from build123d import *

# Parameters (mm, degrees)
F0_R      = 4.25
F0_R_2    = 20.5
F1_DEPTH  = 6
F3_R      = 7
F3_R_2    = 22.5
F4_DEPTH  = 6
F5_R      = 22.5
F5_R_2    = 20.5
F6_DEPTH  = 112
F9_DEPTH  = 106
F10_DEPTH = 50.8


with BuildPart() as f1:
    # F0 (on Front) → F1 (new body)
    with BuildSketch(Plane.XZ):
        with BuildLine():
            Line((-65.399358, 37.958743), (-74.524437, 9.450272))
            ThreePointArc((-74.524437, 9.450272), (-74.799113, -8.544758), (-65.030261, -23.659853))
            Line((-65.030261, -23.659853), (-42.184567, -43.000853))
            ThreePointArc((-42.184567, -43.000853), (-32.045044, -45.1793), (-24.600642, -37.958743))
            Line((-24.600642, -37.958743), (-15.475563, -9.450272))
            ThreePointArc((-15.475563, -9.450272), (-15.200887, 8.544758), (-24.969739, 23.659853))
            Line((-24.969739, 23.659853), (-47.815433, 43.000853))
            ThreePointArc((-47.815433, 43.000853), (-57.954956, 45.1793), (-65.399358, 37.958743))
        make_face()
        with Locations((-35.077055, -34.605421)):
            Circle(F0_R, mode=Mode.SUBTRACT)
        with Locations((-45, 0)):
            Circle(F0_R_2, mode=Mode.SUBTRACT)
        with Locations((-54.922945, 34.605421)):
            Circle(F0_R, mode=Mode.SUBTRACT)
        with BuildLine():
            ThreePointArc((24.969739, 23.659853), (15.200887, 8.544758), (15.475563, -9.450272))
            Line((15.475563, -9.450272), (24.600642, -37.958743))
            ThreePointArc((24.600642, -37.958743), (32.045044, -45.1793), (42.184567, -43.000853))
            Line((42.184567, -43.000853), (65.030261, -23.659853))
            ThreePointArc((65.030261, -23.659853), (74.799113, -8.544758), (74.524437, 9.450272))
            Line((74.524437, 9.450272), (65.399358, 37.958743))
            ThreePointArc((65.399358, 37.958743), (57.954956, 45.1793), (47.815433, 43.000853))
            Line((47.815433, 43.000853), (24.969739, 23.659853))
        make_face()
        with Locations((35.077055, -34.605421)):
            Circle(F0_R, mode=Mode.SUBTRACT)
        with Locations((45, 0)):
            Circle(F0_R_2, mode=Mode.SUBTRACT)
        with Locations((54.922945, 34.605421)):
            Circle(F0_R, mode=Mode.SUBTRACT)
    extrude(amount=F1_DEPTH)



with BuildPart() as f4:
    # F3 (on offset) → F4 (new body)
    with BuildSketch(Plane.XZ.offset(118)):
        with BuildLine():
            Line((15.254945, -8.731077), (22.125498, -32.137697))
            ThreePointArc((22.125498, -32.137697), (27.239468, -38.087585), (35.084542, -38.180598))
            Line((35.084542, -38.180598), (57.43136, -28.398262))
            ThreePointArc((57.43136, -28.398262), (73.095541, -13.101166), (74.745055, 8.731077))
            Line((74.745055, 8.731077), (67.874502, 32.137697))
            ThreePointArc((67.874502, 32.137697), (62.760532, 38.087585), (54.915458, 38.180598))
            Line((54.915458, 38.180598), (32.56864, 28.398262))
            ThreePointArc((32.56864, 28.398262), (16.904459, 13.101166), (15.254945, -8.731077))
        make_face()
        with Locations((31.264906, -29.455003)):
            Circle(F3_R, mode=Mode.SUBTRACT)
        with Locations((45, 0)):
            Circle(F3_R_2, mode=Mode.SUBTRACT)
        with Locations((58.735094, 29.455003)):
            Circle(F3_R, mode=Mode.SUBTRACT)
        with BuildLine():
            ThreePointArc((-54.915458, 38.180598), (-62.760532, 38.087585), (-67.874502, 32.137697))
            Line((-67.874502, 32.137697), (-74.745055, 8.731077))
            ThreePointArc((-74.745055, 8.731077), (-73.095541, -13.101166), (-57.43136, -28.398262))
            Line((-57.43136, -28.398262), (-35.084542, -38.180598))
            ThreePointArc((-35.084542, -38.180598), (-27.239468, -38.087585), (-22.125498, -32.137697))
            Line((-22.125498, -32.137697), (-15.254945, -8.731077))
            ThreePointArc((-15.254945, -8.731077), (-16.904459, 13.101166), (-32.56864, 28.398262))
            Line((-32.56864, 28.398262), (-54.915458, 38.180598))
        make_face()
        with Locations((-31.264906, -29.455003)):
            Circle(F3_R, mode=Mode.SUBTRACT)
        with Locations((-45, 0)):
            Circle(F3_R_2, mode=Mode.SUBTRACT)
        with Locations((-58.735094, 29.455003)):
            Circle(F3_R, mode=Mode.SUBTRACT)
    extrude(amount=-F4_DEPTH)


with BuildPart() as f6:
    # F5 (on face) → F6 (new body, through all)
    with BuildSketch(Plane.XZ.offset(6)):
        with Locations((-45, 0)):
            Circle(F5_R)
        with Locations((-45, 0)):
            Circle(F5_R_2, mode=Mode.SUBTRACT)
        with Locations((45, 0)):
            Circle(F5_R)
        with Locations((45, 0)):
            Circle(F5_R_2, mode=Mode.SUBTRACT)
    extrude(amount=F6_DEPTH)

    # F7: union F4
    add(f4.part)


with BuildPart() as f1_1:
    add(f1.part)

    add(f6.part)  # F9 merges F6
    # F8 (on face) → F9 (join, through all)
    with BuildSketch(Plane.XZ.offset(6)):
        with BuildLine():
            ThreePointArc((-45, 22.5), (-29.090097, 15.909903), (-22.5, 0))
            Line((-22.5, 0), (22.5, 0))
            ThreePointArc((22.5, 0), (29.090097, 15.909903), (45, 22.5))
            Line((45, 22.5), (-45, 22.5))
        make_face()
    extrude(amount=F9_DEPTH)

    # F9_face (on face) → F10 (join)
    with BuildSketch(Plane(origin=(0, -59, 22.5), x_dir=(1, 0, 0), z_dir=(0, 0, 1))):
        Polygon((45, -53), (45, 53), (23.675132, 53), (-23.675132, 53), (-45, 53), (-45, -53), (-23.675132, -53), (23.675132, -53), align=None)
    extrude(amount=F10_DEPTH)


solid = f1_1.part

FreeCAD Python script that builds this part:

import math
import FreeCAD as App
import Part
import Sketcher

V = App.Vector
Q = App.Units.Quantity


def add_polygon(sketch, points):
    """Adds a closed chain of lines whose ends are joined by coincident constraints."""
    first, n = sketch.GeometryCount, len(points)
    for a, b in zip(points, points[1:] + points[:1]):
        sketch.addGeometry(Part.LineSegment(App.Vector(*a, 0), App.Vector(*b, 0)), False)
    for i in range(n):
        sketch.addConstraint(Sketcher.Constraint("Coincident", first + i, 2, first + (i + 1) % n, 1))

doc = App.newDocument("Part")
params = doc.addObject("Spreadsheet::Sheet", "Params")
for row, (alias, value) in enumerate([
    ("sketch1_diameter", "41 mm"),
    ("sketch1_radius", "30.999999 mm"),
    ("sketch1_radius2", "11 mm"),
    ("sketch1_diameter2", "8.5 mm"),
    ("pad1_length", "6 mm"),
    ("sketch2_diameter", "14 mm"),
    ("sketch2_diameter2", "45 mm"),
    ("sketch2_radius", "31.000001 mm"),
    ("pad2_length", "6 mm"),
    ("sketch3_diameter", "45 mm"),
    ("sketch3_diameter2", "41 mm"),
    ("pad3_length", "112 mm"),
    ("sketch4_radius", "22.499999 mm"),
    ("sketch4_width", "45 mm"),
    ("pad4_length", "106 mm"),
    ("sketch5_width", "90 mm"),
    ("sketch5_height", "106 mm"),
    ("pad5_length", "50.8 mm"),
], start=1):
    params.set(f"A{row}", alias)
    params.set(f"B{row}", "=" + value)
    params.setAlias(f"B{row}", alias)

body = doc.addObject("PartDesign::Body", "Body")
body.AllowCompound = True

# Sketch on XZ plane
sketch1 = body.newObject("Sketcher::SketchObject", "Sketch")
sketch1.AttachmentSupport = (doc.getObject("XZ_Plane"), [""])
sketch1.MapMode = "FlatFace"
sketch1.addGeometry(Part.LineSegment(V(-65.4, 38, 0), V(-74.5, 9.5, 0)), False)
sketch1.addGeometry(Part.ArcOfCircle(Part.Circle(V(-45, 0, 0), V(0, 0, 1), 31), math.radians(162), math.radians(230)), False)
sketch1.addGeometry(Part.LineSegment(V(-65, -23.7, 0), V(-42.2, -43, 0)), False)
sketch1.addGeometry(Part.ArcOfCircle(Part.Circle(V(-35.1, -34.6, 0), V(0, 0, 1), 11), math.radians(-130), math.radians(-18)), False)
sketch1.addGeometry(Part.LineSegment(V(-24.6, -38, 0), V(-15.5, -9.5, 0)), False)
sketch1.addGeometry(Part.ArcOfCircle(Part.Circle(V(-45, 0, 0), V(0, 0, 1), 31), math.radians(-18), math.radians(50)), False)
sketch1.addGeometry(Part.LineSegment(V(-25, 23.7, 0), V(-47.8, 43, 0)), False)
sketch1.addGeometry(Part.ArcOfCircle(Part.Circle(V(-54.9, 34.6, 0), V(0, 0, 1), 11), math.radians(50), math.radians(162)), False)
sketch1.addGeometry(Part.Circle(V(-35.1, -34.6, 0), V(0, 0, 1), 4.2), False)
sketch1.addGeometry(Part.Circle(V(-54.9, 34.6, 0), V(0, 0, 1), 4.2), False)
sketch1.addGeometry(Part.Circle(V(-45, 0, 0), V(0, 0, 1), 20.5), False)
sketch1.addGeometry(Part.ArcOfCircle(Part.Circle(V(45, 0, 0), V(0, 0, 1), 31), math.radians(130), math.radians(198)), False)
sketch1.addGeometry(Part.LineSegment(V(15.5, -9.5, 0), V(24.6, -38, 0)), False)
sketch1.addGeometry(Part.ArcOfCircle(Part.Circle(V(35.1, -34.6, 0), V(0, 0, 1), 11), math.radians(-162), math.radians(-50)), False)
sketch1.addGeometry(Part.LineSegment(V(42.2, -43, 0), V(65, -23.7, 0)), False)
sketch1.addGeometry(Part.ArcOfCircle(Part.Circle(V(45, 0, 0), V(0, 0, 1), 31), math.radians(-50), math.radians(18)), False)
sketch1.addGeometry(Part.LineSegment(V(74.5, 9.5, 0), V(65.4, 38, 0)), False)
sketch1.addGeometry(Part.ArcOfCircle(Part.Circle(V(54.9, 34.6, 0), V(0, 0, 1), 11), math.radians(18), math.radians(130)), False)
sketch1.addGeometry(Part.LineSegment(V(47.8, 43, 0), V(25, 23.7, 0)), False)
sketch1.addGeometry(Part.Circle(V(35.1, -34.6, 0), V(0, 0, 1), 4.2), False)
sketch1.addGeometry(Part.Circle(V(45, 0, 0), V(0, 0, 1), 20.5), False)
sketch1.addGeometry(Part.Circle(V(54.9, 34.6, 0), V(0, 0, 1), 4.2), False)
sketch1.addConstraint(Sketcher.Constraint("Tangent", 0, 2, 1, 1))
sketch1.addConstraint(Sketcher.Constraint("Tangent", 1, 2, 2, 1))
sketch1.addConstraint(Sketcher.Constraint("Tangent", 2, 2, 3, 1))
sketch1.addConstraint(Sketcher.Constraint("Tangent", 3, 2, 4, 1))
sketch1.addConstraint(Sketcher.Constraint("Tangent", 4, 2, 5, 1))
sketch1.addConstraint(Sketcher.Constraint("Tangent", 5, 2, 6, 1))
sketch1.addConstraint(Sketcher.Constraint("Tangent", 6, 2, 7, 1))
sketch1.addConstraint(Sketcher.Constraint("Tangent", 7, 2, 0, 1))
sketch1.addConstraint(Sketcher.Constraint("Tangent", 11, 2, 12, 1))
sketch1.addConstraint(Sketcher.Constraint("Tangent", 12, 2, 13, 1))
sketch1.addConstraint(Sketcher.Constraint("Tangent", 13, 2, 14, 1))
sketch1.addConstraint(Sketcher.Constraint("Tangent", 14, 2, 15, 1))
sketch1.addConstraint(Sketcher.Constraint("Tangent", 15, 2, 16, 1))
sketch1.addConstraint(Sketcher.Constraint("Tangent", 16, 2, 17, 1))
sketch1.addConstraint(Sketcher.Constraint("Tangent", 17, 2, 18, 1))
sketch1.addConstraint(Sketcher.Constraint("Tangent", 18, 2, 11, 1))
sketch1.addConstraint(Sketcher.Constraint("Coincident", 5, 3, 1, 3))
sketch1.addConstraint(Sketcher.Constraint("Coincident", 8, 3, 3, 3))
sketch1.addConstraint(Sketcher.Constraint("Coincident", 9, 3, 7, 3))
sketch1.addConstraint(Sketcher.Constraint("Coincident", 10, 3, 1, 3))
sketch1.addConstraint(Sketcher.Constraint("Coincident", 15, 3, 11, 3))
sketch1.addConstraint(Sketcher.Constraint("Coincident", 19, 3, 13, 3))
sketch1.addConstraint(Sketcher.Constraint("Coincident", 20, 3, 11, 3))
sketch1.addConstraint(Sketcher.Constraint("Coincident", 21, 3, 17, 3))
sketch1.addConstraint(Sketcher.Constraint("Equal", 1, 5))
sketch1.addConstraint(Sketcher.Constraint("Equal", 3, 7))
sketch1.addConstraint(Sketcher.Constraint("Equal", 8, 9))
sketch1.addConstraint(Sketcher.Constraint("Equal", 5, 11))
sketch1.addConstraint(Sketcher.Constraint("Equal", 7, 13))
sketch1.addConstraint(Sketcher.Constraint("Equal", 11, 15))
sketch1.addConstraint(Sketcher.Constraint("Equal", 13, 17))
sketch1.addConstraint(Sketcher.Constraint("Equal", 9, 19))
sketch1.addConstraint(Sketcher.Constraint("Equal", 10, 20))
sketch1.addConstraint(Sketcher.Constraint("Equal", 19, 21))
sketch1.addConstraint(Sketcher.Constraint("Symmetric", 1, 3, 11, 3, -1, 1))
sketch1.addConstraint(Sketcher.Constraint("Symmetric", 3, 3, 13, 3, -2))
sketch1.addConstraint(Sketcher.Constraint("Symmetric", 7, 3, 17, 3, -2))
sketch1.addConstraint(Sketcher.Constraint("PointOnObject", 1, 3, -1))
sketch1.addConstraint(Sketcher.Constraint("Parallel", 0, 4))
sketch1.addConstraint(Sketcher.Constraint("Parallel", 2, 6))
sketch1.addConstraint(Sketcher.Constraint("Diameter", 10, Q("41 mm")))
sketch1.addConstraint(Sketcher.Constraint("Radius", 1, Q("30.999999 mm")))
sketch1.addConstraint(Sketcher.Constraint("Radius", 3, Q("11 mm")))
sketch1.addConstraint(Sketcher.Constraint("Diameter", 8, Q("8.5 mm")))
sketch1.addConstraint(Sketcher.Constraint("DistanceX", 1, 3, -1, 1, Q("45.000001 mm")))
sketch1.addConstraint(Sketcher.Constraint("DistanceY", 2, 2, 1, 2, Q("19.341 mm")))
sketch1.addConstraint(Sketcher.Constraint("Distance", 0, Q("29.933259 mm")))
sketch1.setExpression("Constraints[40]", "Params.sketch1_diameter")
sketch1.setExpression("Constraints[41]", "Params.sketch1_radius")
sketch1.setExpression("Constraints[42]", "Params.sketch1_radius2")
sketch1.setExpression("Constraints[43]", "Params.sketch1_diameter2")
pad1 = body.newObject("PartDesign::Pad", "Pad")
pad1.Profile = sketch1
pad1.setExpression("Length", "Params.pad1_length")
body2 = doc.addObject("PartDesign::Body", "Body001")
body2.AllowCompound = True

# Sketch on XZ plane
sketch2 = body2.newObject("Sketcher::SketchObject", "Sketch001")
sketch2.AttachmentSupport = (doc.getObject("XZ_Plane001"), [""])
sketch2.MapMode = "FlatFace"
sketch2.AttachmentOffset = App.Placement(V(0, 0, 118), App.Rotation())
sketch2.addGeometry(Part.LineSegment(V(15, -9, 0), V(22, -32, 0)), False)
sketch2.addGeometry(Part.ArcOfCircle(Part.Circle(V(31, -29, 0), V(0, 0, 1), 10), math.radians(-164), math.radians(-66)), False)
sketch2.addGeometry(Part.LineSegment(V(35, -38, 0), V(57, -28, 0)), False)
sketch2.addGeometry(Part.ArcOfCircle(Part.Circle(V(45, 0, 0), V(0, 0, 1), 31), math.radians(-66), math.radians(16)), False)
sketch2.addGeometry(Part.LineSegment(V(75, 9, 0), V(68, 32, 0)), False)
sketch2.addGeometry(Part.ArcOfCircle(Part.Circle(V(59, 29, 0), V(0, 0, 1), 10), math.radians(16), math.radians(114)), False)
sketch2.addGeometry(Part.LineSegment(V(55, 38, 0), V(33, 28, 0)), False)
sketch2.addGeometry(Part.ArcOfCircle(Part.Circle(V(45, 0, 0), V(0, 0, 1), 31), math.radians(114), math.radians(196)), False)
sketch2.addGeometry(Part.Circle(V(31, -29, 0), V(0, 0, 1), 7), False)
sketch2.addGeometry(Part.Circle(V(45, 0, 0), V(0, 0, 1), 22), False)
sketch2.addGeometry(Part.Circle(V(59, 29, 0), V(0, 0, 1), 7), False)
sketch2.addGeometry(Part.ArcOfCircle(Part.Circle(V(-59, 29, 0), V(0, 0, 1), 10), math.radians(66), math.radians(164)), False)
sketch2.addGeometry(Part.LineSegment(V(-68, 32, 0), V(-75, 9, 0)), False)
sketch2.addGeometry(Part.ArcOfCircle(Part.Circle(V(-45, 0, 0), V(0, 0, 1), 31), math.radians(164), math.radians(246)), False)
sketch2.addGeometry(Part.LineSegment(V(-57, -28, 0), V(-35, -38, 0)), False)
sketch2.addGeometry(Part.ArcOfCircle(Part.Circle(V(-31, -29, 0), V(0, 0, 1), 10), math.radians(-114), math.radians(-16)), False)
sketch2.addGeometry(Part.LineSegment(V(-22, -32, 0), V(-15, -9, 0)), False)
sketch2.addGeometry(Part.ArcOfCircle(Part.Circle(V(-45, 0, 0), V(0, 0, 1), 31), math.radians(-16), math.radians(66)), False)
sketch2.addGeometry(Part.LineSegment(V(-33, 28, 0), V(-55, 38, 0)), False)
sketch2.addGeometry(Part.Circle(V(-31, -29, 0), V(0, 0, 1), 7), False)
sketch2.addGeometry(Part.Circle(V(-59, 29, 0), V(0, 0, 1), 7), False)
sketch2.addGeometry(Part.Circle(V(-45, 0, 0), V(0, 0, 1), 22), False)
sketch2.addConstraint(Sketcher.Constraint("Tangent", 0, 2, 1, 1))
sketch2.addConstraint(Sketcher.Constraint("Tangent", 1, 2, 2, 1))
sketch2.addConstraint(Sketcher.Constraint("Tangent", 2, 2, 3, 1))
sketch2.addConstraint(Sketcher.Constraint("Tangent", 3, 2, 4, 1))
sketch2.addConstraint(Sketcher.Constraint("Tangent", 4, 2, 5, 1))
sketch2.addConstraint(Sketcher.Constraint("Tangent", 5, 2, 6, 1))
sketch2.addConstraint(Sketcher.Constraint("Tangent", 6, 2, 7, 1))
sketch2.addConstraint(Sketcher.Constraint("Tangent", 7, 2, 0, 1))
sketch2.addConstraint(Sketcher.Constraint("Tangent", 11, 2, 12, 1))
sketch2.addConstraint(Sketcher.Constraint("Tangent", 12, 2, 13, 1))
sketch2.addConstraint(Sketcher.Constraint("Tangent", 13, 2, 14, 1))
sketch2.addConstraint(Sketcher.Constraint("Tangent", 14, 2, 15, 1))
sketch2.addConstraint(Sketcher.Constraint("Tangent", 15, 2, 16, 1))
sketch2.addConstraint(Sketcher.Constraint("Tangent", 16, 2, 17, 1))
sketch2.addConstraint(Sketcher.Constraint("Tangent", 17, 2, 18, 1))
sketch2.addConstraint(Sketcher.Constraint("Tangent", 18, 2, 11, 1))
sketch2.addConstraint(Sketcher.Constraint("Coincident", 7, 3, 3, 3))
sketch2.addConstraint(Sketcher.Constraint("Coincident", 8, 3, 1, 3))
sketch2.addConstraint(Sketcher.Constraint("Coincident", 9, 3, 3, 3))
sketch2.addConstraint(Sketcher.Constraint("Coincident", 10, 3, 5, 3))
sketch2.addConstraint(Sketcher.Constraint("Coincident", 17, 3, 13, 3))
sketch2.addConstraint(Sketcher.Constraint("Coincident", 19, 3, 15, 3))
sketch2.addConstraint(Sketcher.Constraint("Coincident", 20, 3, 11, 3))
sketch2.addConstraint(Sketcher.Constraint("Coincident", 21, 3, 13, 3))
sketch2.addConstraint(Sketcher.Constraint("Equal", 1, 5))
sketch2.addConstraint(Sketcher.Constraint("Equal", 3, 7))
sketch2.addConstraint(Sketcher.Constraint("Equal", 8, 10))
sketch2.addConstraint(Sketcher.Constraint("Equal", 5, 11))
sketch2.addConstraint(Sketcher.Constraint("Equal", 7, 13))
sketch2.addConstraint(Sketcher.Constraint("Equal", 11, 15))
sketch2.addConstraint(Sketcher.Constraint("Equal", 13, 17))
sketch2.addConstraint(Sketcher.Constraint("Equal", 10, 19))
sketch2.addConstraint(Sketcher.Constraint("Equal", 19, 20))
sketch2.addConstraint(Sketcher.Constraint("Equal", 9, 21))
sketch2.addConstraint(Sketcher.Constraint("Symmetric", 3, 3, 13, 3, -1, 1))
sketch2.addConstraint(Sketcher.Constraint("Symmetric", 5, 3, 11, 3, -2))
sketch2.addConstraint(Sketcher.Constraint("Symmetric", 1, 3, 15, 3, -2))
sketch2.addConstraint(Sketcher.Constraint("PointOnObject", 3, 3, -1))
sketch2.addConstraint(Sketcher.Constraint("Parallel", 0, 4))
sketch2.addConstraint(Sketcher.Constraint("Parallel", 2, 6))
sketch2.addConstraint(Sketcher.Constraint("Diameter", 8, Q("14 mm")))
sketch2.addConstraint(Sketcher.Constraint("Diameter", 9, Q("45 mm")))
sketch2.addConstraint(Sketcher.Constraint("Radius", 3, Q("31.000001 mm")))
sketch2.addConstraint(Sketcher.Constraint("DistanceX", -1, 1, 3, 3, Q("44.999999 mm")))
sketch2.addConstraint(Sketcher.Constraint("Radius", 1, Q("9.525 mm")))
sketch2.addConstraint(Sketcher.Constraint("DistanceY", 3, 3, 5, 3, Q("29.455002 mm")))
sketch2.addConstraint(Sketcher.Constraint("DistanceX", -1, 1, 0, 2, Q("22.125498 mm")))
sketch2.setExpression("Constraints[40]", "Params.sketch2_diameter")
sketch2.setExpression("Constraints[41]", "Params.sketch2_diameter2")
sketch2.setExpression("Constraints[42]", "Params.sketch2_radius")
pad2 = body2.newObject("PartDesign::Pad", "Pad001")
pad2.Profile = sketch2
pad2.setExpression("Length", "Params.pad2_length")
pad2.Reversed = True
body3 = doc.addObject("PartDesign::Body", "Body002")
body3.AllowCompound = True

# Sketch on XZ plane
sketch3 = body3.newObject("Sketcher::SketchObject", "Sketch002")
sketch3.AttachmentSupport = (doc.getObject("XZ_Plane002"), [""])
sketch3.MapMode = "FlatFace"
sketch3.AttachmentOffset = App.Placement(V(0, 0, 6), App.Rotation())
sketch3.addGeometry(Part.Circle(V(-45, 0, 0), V(0, 0, 1), 22), False)
sketch3.addGeometry(Part.Circle(V(-45, 0, 0), V(0, 0, 1), 20), False)
sketch3.addGeometry(Part.Circle(V(45, 0, 0), V(0, 0, 1), 22), False)
sketch3.addGeometry(Part.Circle(V(45, 0, 0), V(0, 0, 1), 20), False)
sketch3.addConstraint(Sketcher.Constraint("Coincident", 1, 3, 0, 3))
sketch3.addConstraint(Sketcher.Constraint("Coincident", 3, 3, 2, 3))
sketch3.addConstraint(Sketcher.Constraint("Equal", 0, 2))
sketch3.addConstraint(Sketcher.Constraint("Equal", 1, 3))
sketch3.addConstraint(Sketcher.Constraint("Symmetric", 0, 3, 2, 3, -1, 1))
sketch3.addConstraint(Sketcher.Constraint("PointOnObject", 0, 3, -1))
sketch3.addConstraint(Sketcher.Constraint("Diameter", 0, Q("45 mm")))
sketch3.addConstraint(Sketcher.Constraint("Diameter", 1, Q("41 mm")))
sketch3.addConstraint(Sketcher.Constraint("DistanceX", 0, 3, -1, 1, Q("45 mm")))
sketch3.setExpression("Constraints[6]", "Params.sketch3_diameter")
sketch3.setExpression("Constraints[7]", "Params.sketch3_diameter2")
pad3 = body3.newObject("PartDesign::Pad", "Pad002")
pad3.Profile = sketch3
pad3.setExpression("Length", "Params.pad3_length")
doc.recompute()

boolean = body3.newObject("PartDesign::Boolean", "Boolean")
boolean.Type = "Fuse"
boolean.addObjects([body2])
body.AllowCompound = True
doc.recompute()

boolean2 = body.newObject("PartDesign::Boolean", "Boolean001")
boolean2.Type = "Fuse"
boolean2.addObjects([body3])

# Sketch on XZ plane
sketch4 = body.newObject("Sketcher::SketchObject", "Sketch003")
sketch4.AttachmentSupport = (doc.getObject("XZ_Plane"), [""])
sketch4.MapMode = "FlatFace"
sketch4.AttachmentOffset = App.Placement(V(0, 0, 6), App.Rotation())
sketch4.addGeometry(Part.ArcOfCircle(Part.Circle(V(-45, 0, 0), V(0, 0, 1), 22), math.radians(0), math.radians(90)), False)
sketch4.addGeometry(Part.LineSegment(V(-22, 0, 0), V(22, 0, 0)), False)
sketch4.addGeometry(Part.ArcOfCircle(Part.Circle(V(45, 0, 0), V(0, 0, 1), 22), math.radians(90), math.radians(180)), False)
sketch4.addGeometry(Part.LineSegment(V(45, 22, 0), V(-45, 22, 0)), False)
sketch4.addConstraint(Sketcher.Constraint("Coincident", 0, 1, 1, 1))
sketch4.addConstraint(Sketcher.Constraint("Coincident", 1, 2, 2, 2))
sketch4.addConstraint(Sketcher.Constraint("Tangent", 2, 1, 3, 1))
sketch4.addConstraint(Sketcher.Constraint("Tangent", 3, 2, 0, 2))
sketch4.addConstraint(Sketcher.Constraint("Horizontal", 1))
sketch4.addConstraint(Sketcher.Constraint("Horizontal", 3))
sketch4.addConstraint(Sketcher.Constraint("Equal", 0, 2))
sketch4.addConstraint(Sketcher.Constraint("Symmetric", 0, 3, 2, 3, -1, 1))
sketch4.addConstraint(Sketcher.Constraint("PointOnObject", 0, 1, -1))
sketch4.addConstraint(Sketcher.Constraint("Radius", 0, Q("22.499999 mm")))
sketch4.addConstraint(Sketcher.Constraint("DistanceX", 1, 1, 1, 2, Q("45 mm")))
sketch4.setExpression("Constraints[9]", "Params.sketch4_radius")
sketch4.setExpression("Constraints[10]", "Params.sketch4_width")
pad4 = body.newObject("PartDesign::Pad", "Pad003")
pad4.Profile = sketch4
pad4.setExpression("Length", "Params.pad4_length")

# Sketch on XY plane
sketch5 = body.newObject("Sketcher::SketchObject", "Sketch004")
sketch5.AttachmentSupport = (doc.getObject("XY_Plane"), [""])
sketch5.MapMode = "FlatFace"
sketch5.AttachmentOffset = App.Placement(V(0, 0, 22.5), App.Rotation())
add_polygon(sketch5, [(45, -112), (45, -6), (-45, -6), (-45, -112)])  # lines 0-3
sketch5.addConstraint(Sketcher.Constraint("Vertical", 0))
sketch5.addConstraint(Sketcher.Constraint("Horizontal", 1))
sketch5.addConstraint(Sketcher.Constraint("Vertical", 2))
sketch5.addConstraint(Sketcher.Constraint("Horizontal", 3))
sketch5.addConstraint(Sketcher.Constraint("DistanceX", 1, 2, 1, 1, Q("90 mm")))
sketch5.addConstraint(Sketcher.Constraint("DistanceY", 0, 1, 0, 2, Q("106 mm")))
sketch5.addConstraint(Sketcher.Constraint("DistanceX", -1, 1, 0, 2, Q("45 mm")))
sketch5.addConstraint(Sketcher.Constraint("DistanceY", 0, 2, -1, 1, Q("6 mm")))
sketch5.setExpression("Constraints[8]", "Params.sketch5_width")
sketch5.setExpression("Constraints[9]", "Params.sketch5_height")
pad5 = body.newObject("PartDesign::Pad", "Pad004")
pad5.Profile = sketch5
pad5.setExpression("Length", "Params.pad5_length")

doc.recompute()
